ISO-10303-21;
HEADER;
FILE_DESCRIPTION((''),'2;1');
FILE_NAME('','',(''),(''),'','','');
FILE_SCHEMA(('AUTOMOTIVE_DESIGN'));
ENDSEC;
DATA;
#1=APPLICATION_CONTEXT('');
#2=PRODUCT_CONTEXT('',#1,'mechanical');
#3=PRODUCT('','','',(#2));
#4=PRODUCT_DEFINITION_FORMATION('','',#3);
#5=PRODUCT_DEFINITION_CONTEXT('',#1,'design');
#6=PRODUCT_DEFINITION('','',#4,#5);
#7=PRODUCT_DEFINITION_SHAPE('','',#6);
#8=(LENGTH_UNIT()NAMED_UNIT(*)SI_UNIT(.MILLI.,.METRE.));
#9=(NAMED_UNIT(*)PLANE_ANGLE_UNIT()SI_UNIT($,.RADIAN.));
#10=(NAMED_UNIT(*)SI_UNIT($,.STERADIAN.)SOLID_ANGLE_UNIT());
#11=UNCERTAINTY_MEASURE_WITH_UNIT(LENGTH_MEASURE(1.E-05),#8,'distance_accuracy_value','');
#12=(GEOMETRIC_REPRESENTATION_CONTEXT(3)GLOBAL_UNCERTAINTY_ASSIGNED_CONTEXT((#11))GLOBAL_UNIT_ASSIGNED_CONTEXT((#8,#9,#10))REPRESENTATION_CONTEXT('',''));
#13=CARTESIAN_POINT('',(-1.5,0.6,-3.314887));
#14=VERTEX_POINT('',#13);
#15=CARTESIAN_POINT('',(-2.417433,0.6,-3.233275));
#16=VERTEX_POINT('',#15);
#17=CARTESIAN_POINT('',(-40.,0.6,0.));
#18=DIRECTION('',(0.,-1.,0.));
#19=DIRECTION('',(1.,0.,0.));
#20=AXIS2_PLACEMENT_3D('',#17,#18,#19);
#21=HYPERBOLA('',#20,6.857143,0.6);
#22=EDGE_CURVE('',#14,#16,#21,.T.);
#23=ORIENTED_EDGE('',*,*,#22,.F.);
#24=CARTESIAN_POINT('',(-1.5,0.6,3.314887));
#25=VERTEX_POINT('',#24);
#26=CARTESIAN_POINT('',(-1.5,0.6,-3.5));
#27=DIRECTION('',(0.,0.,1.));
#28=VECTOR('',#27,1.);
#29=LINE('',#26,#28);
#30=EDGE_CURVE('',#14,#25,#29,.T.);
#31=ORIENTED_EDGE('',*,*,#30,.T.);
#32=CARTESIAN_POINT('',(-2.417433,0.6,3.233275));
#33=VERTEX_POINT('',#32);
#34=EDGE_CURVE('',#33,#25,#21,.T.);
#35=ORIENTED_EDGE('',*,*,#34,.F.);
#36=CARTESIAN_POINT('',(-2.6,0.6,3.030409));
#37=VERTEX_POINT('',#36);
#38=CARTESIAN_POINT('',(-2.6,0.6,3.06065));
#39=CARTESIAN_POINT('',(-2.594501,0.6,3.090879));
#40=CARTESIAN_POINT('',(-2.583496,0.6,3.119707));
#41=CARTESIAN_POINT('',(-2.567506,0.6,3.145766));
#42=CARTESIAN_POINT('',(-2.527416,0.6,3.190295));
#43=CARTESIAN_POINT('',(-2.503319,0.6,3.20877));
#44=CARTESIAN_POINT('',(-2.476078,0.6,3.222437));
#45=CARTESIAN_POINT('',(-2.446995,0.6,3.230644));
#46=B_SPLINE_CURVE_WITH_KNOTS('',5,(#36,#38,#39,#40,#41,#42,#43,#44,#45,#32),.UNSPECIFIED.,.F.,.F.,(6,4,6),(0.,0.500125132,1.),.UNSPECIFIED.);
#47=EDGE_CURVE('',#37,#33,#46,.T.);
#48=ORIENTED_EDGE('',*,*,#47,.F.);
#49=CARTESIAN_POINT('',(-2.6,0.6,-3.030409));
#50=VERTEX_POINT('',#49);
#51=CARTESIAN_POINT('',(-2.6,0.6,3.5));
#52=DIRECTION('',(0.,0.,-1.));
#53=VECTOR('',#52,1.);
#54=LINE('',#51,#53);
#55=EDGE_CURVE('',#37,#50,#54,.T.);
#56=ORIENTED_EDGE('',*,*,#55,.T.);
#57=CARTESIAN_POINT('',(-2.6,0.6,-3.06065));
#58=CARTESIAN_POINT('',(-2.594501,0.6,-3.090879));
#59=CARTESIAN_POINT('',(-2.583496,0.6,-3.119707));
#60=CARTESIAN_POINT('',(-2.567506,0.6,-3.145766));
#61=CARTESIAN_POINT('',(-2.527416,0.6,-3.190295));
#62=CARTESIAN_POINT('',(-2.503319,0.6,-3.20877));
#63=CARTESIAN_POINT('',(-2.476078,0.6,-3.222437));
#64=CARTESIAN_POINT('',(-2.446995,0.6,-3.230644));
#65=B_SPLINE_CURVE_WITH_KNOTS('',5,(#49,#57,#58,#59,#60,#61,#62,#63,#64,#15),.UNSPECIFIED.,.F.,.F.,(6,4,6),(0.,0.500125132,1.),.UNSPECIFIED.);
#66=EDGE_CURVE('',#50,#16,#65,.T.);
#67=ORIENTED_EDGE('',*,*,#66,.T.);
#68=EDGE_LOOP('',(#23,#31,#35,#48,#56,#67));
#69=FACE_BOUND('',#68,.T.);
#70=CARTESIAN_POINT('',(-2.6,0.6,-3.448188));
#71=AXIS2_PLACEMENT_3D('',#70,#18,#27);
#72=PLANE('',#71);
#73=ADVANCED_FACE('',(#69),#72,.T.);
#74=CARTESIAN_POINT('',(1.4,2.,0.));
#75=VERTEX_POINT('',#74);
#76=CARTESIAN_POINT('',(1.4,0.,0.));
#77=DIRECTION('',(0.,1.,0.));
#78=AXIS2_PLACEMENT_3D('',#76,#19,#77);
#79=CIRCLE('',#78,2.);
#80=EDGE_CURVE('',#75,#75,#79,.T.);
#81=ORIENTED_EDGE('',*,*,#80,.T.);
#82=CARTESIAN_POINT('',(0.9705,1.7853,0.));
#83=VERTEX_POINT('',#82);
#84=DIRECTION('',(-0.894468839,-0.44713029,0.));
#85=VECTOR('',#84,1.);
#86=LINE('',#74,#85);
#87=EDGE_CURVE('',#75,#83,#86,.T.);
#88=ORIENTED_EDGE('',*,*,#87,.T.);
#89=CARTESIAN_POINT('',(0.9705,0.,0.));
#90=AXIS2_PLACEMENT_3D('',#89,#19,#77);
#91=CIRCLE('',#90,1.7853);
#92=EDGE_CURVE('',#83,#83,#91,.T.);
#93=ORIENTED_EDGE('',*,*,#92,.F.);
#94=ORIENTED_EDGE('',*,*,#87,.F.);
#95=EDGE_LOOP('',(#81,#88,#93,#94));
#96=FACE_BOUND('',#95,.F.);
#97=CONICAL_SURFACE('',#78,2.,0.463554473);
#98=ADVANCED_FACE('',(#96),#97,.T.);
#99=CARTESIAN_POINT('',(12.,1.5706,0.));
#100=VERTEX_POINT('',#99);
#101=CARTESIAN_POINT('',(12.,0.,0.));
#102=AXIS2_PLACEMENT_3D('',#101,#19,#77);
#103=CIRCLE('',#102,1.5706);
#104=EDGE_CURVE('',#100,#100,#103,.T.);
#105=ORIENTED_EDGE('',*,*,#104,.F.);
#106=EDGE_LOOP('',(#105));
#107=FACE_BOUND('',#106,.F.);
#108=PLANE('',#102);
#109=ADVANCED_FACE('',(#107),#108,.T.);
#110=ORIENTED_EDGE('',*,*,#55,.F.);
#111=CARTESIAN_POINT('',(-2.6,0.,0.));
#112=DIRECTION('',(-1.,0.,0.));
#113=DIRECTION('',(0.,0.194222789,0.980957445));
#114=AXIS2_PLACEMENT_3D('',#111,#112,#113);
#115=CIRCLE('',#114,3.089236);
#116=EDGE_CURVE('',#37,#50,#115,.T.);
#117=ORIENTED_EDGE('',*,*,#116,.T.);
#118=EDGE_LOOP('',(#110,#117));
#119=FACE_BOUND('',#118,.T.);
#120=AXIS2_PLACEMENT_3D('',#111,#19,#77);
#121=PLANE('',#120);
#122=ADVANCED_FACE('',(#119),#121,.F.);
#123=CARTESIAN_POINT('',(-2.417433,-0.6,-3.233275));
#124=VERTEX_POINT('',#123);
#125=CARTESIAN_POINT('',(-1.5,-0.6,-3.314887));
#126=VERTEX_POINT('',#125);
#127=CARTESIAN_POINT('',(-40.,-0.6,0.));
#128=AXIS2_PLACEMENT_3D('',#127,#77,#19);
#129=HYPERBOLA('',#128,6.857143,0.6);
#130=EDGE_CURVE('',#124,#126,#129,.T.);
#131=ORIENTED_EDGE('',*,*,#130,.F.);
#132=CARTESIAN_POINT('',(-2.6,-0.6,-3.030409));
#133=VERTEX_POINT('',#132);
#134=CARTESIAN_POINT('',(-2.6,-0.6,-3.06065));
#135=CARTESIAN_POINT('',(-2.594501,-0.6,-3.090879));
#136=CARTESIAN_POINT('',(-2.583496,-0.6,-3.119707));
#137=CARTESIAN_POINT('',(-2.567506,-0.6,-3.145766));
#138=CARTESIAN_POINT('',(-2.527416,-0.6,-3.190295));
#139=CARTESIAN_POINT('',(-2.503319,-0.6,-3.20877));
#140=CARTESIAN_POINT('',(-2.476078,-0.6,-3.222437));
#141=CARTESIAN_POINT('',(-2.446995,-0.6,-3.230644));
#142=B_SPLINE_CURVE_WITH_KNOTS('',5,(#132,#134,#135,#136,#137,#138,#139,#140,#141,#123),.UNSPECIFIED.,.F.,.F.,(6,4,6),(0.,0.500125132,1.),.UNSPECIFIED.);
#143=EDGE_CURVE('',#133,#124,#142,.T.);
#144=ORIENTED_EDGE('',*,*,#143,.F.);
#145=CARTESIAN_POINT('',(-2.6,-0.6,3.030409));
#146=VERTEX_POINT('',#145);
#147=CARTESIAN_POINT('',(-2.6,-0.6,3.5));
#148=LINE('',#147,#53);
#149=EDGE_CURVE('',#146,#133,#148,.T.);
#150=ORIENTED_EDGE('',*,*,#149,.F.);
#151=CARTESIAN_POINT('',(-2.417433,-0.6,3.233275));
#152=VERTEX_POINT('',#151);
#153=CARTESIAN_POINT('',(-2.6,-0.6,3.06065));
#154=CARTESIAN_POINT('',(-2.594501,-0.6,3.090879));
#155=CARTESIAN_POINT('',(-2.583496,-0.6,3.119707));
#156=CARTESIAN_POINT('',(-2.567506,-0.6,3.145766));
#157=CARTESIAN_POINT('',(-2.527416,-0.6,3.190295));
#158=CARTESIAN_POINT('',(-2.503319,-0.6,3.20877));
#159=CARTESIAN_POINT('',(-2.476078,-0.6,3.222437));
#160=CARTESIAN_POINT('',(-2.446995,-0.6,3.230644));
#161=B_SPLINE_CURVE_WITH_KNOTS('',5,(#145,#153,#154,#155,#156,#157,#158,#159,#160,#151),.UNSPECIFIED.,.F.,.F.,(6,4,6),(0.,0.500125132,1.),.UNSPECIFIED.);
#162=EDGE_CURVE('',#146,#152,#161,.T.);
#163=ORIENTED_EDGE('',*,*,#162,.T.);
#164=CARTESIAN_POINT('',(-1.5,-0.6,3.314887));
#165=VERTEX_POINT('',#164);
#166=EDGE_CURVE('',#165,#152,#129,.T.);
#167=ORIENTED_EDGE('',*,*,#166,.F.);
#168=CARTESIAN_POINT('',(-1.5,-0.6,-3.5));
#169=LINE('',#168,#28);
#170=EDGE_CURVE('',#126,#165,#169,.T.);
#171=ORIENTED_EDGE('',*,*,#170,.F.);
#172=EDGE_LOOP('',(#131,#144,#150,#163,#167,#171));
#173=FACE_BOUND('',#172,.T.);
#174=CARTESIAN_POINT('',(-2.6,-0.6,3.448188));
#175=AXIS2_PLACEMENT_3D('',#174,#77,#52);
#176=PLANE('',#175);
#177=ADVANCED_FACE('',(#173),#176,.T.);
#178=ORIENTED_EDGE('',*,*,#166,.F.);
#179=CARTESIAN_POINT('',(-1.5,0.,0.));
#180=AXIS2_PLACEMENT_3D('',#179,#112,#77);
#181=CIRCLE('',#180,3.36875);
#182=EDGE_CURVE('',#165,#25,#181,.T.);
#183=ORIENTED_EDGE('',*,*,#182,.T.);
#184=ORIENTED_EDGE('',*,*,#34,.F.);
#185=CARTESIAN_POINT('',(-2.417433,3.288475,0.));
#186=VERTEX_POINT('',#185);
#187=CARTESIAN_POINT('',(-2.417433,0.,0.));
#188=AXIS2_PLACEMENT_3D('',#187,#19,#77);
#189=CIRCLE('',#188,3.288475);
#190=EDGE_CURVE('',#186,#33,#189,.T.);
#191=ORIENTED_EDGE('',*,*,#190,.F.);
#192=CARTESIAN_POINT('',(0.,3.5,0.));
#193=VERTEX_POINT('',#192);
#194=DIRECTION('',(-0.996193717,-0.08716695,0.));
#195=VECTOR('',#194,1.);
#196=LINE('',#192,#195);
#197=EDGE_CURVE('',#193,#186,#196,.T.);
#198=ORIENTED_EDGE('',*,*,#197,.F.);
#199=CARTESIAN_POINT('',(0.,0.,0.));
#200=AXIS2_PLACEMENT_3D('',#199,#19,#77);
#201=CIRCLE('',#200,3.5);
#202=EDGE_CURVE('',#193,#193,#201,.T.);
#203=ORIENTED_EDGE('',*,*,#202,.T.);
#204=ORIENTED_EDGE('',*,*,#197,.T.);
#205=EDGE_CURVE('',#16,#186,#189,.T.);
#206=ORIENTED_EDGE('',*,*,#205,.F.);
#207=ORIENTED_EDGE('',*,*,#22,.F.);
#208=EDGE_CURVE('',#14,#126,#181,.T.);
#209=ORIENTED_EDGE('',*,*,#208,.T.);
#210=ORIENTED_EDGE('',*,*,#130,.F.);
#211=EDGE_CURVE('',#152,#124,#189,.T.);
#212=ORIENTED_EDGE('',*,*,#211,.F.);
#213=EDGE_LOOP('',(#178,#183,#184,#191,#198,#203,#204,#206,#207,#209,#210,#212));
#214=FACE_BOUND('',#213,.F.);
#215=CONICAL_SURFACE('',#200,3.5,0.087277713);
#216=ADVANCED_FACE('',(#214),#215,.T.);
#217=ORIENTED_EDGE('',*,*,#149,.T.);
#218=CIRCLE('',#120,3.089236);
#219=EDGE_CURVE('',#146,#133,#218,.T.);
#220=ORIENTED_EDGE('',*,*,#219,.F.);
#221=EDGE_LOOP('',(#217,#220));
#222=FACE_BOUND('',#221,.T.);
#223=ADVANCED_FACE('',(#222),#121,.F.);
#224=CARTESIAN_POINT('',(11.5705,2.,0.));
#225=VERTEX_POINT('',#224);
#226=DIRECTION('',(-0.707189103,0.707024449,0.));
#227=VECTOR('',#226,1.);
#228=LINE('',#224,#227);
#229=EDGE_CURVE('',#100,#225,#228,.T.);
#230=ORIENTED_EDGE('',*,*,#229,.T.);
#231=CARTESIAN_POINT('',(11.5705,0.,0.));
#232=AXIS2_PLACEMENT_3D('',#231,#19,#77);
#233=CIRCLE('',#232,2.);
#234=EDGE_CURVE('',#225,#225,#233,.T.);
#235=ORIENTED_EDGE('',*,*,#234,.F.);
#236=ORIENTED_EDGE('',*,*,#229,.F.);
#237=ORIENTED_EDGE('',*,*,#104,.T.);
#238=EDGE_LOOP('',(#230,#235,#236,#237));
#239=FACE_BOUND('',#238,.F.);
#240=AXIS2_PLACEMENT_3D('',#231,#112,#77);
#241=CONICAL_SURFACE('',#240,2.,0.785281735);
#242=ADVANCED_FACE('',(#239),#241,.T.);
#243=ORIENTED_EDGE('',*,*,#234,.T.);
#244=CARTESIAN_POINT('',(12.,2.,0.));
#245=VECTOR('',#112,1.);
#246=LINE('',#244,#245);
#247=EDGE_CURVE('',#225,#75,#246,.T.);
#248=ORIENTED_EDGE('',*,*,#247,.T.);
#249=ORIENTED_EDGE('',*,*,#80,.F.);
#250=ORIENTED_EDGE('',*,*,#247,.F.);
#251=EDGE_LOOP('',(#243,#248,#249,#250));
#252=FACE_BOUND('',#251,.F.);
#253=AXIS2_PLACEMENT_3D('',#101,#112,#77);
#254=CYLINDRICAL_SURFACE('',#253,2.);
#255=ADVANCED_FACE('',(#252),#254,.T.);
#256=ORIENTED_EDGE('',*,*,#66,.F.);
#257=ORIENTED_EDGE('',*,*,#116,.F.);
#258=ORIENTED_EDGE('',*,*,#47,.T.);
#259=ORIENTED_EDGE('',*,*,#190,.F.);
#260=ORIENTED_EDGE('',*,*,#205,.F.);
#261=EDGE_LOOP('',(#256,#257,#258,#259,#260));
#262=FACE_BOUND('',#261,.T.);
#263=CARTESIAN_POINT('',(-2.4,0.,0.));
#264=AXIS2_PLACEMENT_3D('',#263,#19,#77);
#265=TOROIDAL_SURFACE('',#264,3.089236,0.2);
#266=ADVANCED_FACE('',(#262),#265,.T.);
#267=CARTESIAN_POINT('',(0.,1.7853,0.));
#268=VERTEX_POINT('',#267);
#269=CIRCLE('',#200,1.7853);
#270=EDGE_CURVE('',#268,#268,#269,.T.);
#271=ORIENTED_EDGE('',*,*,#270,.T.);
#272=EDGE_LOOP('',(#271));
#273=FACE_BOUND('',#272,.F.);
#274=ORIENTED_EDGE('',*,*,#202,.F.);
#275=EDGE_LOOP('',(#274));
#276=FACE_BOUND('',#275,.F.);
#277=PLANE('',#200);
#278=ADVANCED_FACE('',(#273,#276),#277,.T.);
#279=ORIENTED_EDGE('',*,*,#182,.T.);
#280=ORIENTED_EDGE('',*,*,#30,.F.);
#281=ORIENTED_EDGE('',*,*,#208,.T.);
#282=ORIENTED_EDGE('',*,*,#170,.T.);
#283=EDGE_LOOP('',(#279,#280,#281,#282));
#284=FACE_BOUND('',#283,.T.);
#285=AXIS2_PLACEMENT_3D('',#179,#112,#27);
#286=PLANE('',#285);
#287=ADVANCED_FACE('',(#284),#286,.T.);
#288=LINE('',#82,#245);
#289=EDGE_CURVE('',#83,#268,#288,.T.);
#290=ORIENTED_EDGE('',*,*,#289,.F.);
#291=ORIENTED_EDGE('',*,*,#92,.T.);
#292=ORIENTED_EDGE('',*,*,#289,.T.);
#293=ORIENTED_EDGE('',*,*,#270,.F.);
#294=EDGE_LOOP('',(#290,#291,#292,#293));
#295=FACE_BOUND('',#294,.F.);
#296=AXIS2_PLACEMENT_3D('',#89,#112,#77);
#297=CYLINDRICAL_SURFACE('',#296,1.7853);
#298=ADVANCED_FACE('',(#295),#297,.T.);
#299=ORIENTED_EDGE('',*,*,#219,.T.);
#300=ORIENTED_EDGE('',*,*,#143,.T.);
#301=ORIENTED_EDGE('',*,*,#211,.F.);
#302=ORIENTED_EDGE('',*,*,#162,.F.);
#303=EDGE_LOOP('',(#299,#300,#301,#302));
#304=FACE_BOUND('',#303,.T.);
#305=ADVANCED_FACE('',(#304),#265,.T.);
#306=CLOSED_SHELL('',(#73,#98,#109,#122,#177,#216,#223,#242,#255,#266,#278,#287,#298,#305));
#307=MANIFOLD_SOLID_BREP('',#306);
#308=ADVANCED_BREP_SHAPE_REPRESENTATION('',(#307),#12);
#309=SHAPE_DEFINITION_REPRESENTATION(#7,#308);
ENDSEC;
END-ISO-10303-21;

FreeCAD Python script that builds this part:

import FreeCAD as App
import Part
import Sketcher
from FreeCAD import Vector
Q = App.Units.Quantity


def edges_at(feature, points):
    """Names of the edges that pass closest to the given points."""
    edges = feature.Shape.Edges
    near = lambda p: min(range(len(edges)), key=lambda i: edges[i].distToShape(Part.Vertex(*p))[0])
    return sorted({f"Edge{near(p) + 1}" for p in points})


def add_polygon(sketch, points):
    """Adds a closed chain of lines whose ends are joined by coincident constraints."""
    first, n = sketch.GeometryCount, len(points)
    for a, b in zip(points, points[1:] + points[:1]):
        sketch.addGeometry(Part.LineSegment(App.Vector(*a, 0), App.Vector(*b, 0)), False)
    for i in range(n):
        sketch.addConstraint(Sketcher.Constraint("Coincident", first + i, 2, first + (i + 1) % n, 1))

doc = App.newDocument("Part")
body = doc.addObject("PartDesign::Body", "Body")

# Sketch on XY plane
sketch1 = doc.addObject("Sketcher::SketchObject", "Sketch")
body.addObject(sketch1)
sketch1.AttachmentSupport = (doc.XY_Plane, [""])
sketch1.MapMode = "FlatFace"
add_polygon(sketch1, [(-2.6, 3.27), (-2.6, 0), (12, 0), (12, 2), (1.4, 2), (0.97, 1.79), (0, 1.79), (0, 3.5)])  # lines 0-7
sketch1.addConstraint(Sketcher.Constraint("Vertical", 0))
sketch1.addConstraint(Sketcher.Constraint("Horizontal", 1))
sketch1.addConstraint(Sketcher.Constraint("Vertical", 2))
sketch1.addConstraint(Sketcher.Constraint("Horizontal", 3))
sketch1.addConstraint(Sketcher.Constraint("Horizontal", 5))
sketch1.addConstraint(Sketcher.Constraint("Vertical", 6))
sketch1.addConstraint(Sketcher.Constraint("PointOnObject", 0, 2, -1))
sketch1.addConstraint(Sketcher.Constraint("PointOnObject", 5, 2, -2))
sketch1.addConstraint(Sketcher.Constraint("DistanceX", 3, 2, 3, 1, Q("10.6 mm")))
sketch1.addConstraint(Sketcher.Constraint("DistanceX", -1, 1, 1, 2, Q("12 mm")))
sketch1.addConstraint(Sketcher.Constraint("DistanceX", 0, 2, 3, 2, Q("4 mm")))
sketch1.addConstraint(Sketcher.Constraint("DistanceY", 2, 1, 2, 2, Q("2 mm")))
sketch1.addConstraint(Sketcher.Constraint("Angle", 7, Q("-174.9994 deg")))
sketch1.addConstraint(Sketcher.Constraint("DistanceY", -1, 1, 6, 2, Q("3.5 mm")))
sketch1.addConstraint(Sketcher.Constraint("Angle", 4, Q("-153.4403 deg")))
sketch1.addConstraint(Sketcher.Constraint("DistanceX", 4, 2, 3, 2, Q("0.4295 mm")))
revolution = doc.addObject("PartDesign::Revolution", "Revolution")
body.addObject(revolution)
revolution.Profile = sketch1
revolution.ReferenceAxis = (sketch1, ["H_Axis"])
revolution.Angle = 360
doc.recompute()

fillet = doc.addObject("PartDesign::Fillet", "Fillet")
body.addObject(fillet)
fillet.Base = (revolution, edges_at(revolution, [(-2.6, -3.272, 0)]))
fillet.Radius = 0.2

# Sketch on YZ plane
sketch2 = doc.addObject("Sketcher::SketchObject", "Sketch001")
body.addObject(sketch2)
sketch2.AttachmentSupport = (doc.YZ_Plane, [""])
sketch2.MapMode = "FlatFace"
sketch2.AttachmentOffset = App.Placement(Vector(0, 0, -2.6), App.Rotation())
add_polygon(sketch2, [(-0.6, 3.5), (0.6, 3.5), (0.6, -3.5), (-0.6, -3.5)])  # lines 0-3
sketch2.addConstraint(Sketcher.Constraint("Horizontal", 0))
sketch2.addConstraint(Sketcher.Constraint("Vertical", 1))
sketch2.addConstraint(Sketcher.Constraint("Horizontal", 2))
sketch2.addConstraint(Sketcher.Constraint("Vertical", 3))
sketch2.addConstraint(Sketcher.Constraint("Symmetric", 0, 2, 2, 2, -1, 1))
sketch2.addConstraint(Sketcher.Constraint("DistanceY", 1, 2, 1, 1, Q("7 mm")))
sketch2.addConstraint(Sketcher.Constraint("DistanceX", 0, 1, 0, 2, Q("1.2 mm")))
pocket1 = doc.addObject("PartDesign::Pocket", "Pocket")
body.addObject(pocket1)
pocket1.Profile = sketch2
pocket1.Length = 1.1
pocket1.Reversed = True
doc.recompute()

chamfer = doc.addObject("PartDesign::Chamfer", "Chamfer")
body.addObject(chamfer)
chamfer.Base = (pocket1, edges_at(pocket1, [(12, -2, 0)]))
chamfer.ChamferType = "Two distances"
chamfer.Size = 0.4294
chamfer.Size2 = 0.4295

doc.recompute()
